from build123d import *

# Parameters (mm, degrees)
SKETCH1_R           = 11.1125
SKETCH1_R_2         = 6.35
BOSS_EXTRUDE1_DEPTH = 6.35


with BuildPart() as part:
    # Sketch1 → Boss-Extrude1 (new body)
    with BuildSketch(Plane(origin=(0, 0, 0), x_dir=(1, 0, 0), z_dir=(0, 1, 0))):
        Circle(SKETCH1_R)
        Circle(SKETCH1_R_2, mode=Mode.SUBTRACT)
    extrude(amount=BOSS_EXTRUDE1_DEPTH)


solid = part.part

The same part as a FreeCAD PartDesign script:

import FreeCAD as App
import Part
import Sketcher

V = App.Vector
Q = App.Units.Quantity

doc = App.newDocument("Part")
body = doc.addObject("PartDesign::Body", "Body")

# Sketch on XZ plane
sketch1 = body.newObject("Sketcher::SketchObject", "Sketch")
sketch1.AttachmentSupport = (doc.getObject("XZ_Plane"), [""])
sketch1.MapMode = "FlatFace"
sketch1.addGeometry(Part.Circle(V(0, 0, 0), V(0, 0, 1), 11), False)
sketch1.addGeometry(Part.Circle(V(0, 0, 0), V(0, 0, 1), 6), False)
sketch1.addConstraint(Sketcher.Constraint("Coincident", 0, 3, -1, 1))
sketch1.addConstraint(Sketcher.Constraint("Coincident", 1, 3, -1, 1))
sketch1.addConstraint(Sketcher.Constraint("Diameter", 1, Q("0.5 in")))
sketch1.addConstraint(Sketcher.Constraint("Diameter", 0, Q("0.875 in")))
pad1 = body.newObject("PartDesign::Pad", "Pad")
pad1.Profile = sketch1
pad1.Length = Q("0.25 in")
pad1.Reversed = True

doc.recompute()
